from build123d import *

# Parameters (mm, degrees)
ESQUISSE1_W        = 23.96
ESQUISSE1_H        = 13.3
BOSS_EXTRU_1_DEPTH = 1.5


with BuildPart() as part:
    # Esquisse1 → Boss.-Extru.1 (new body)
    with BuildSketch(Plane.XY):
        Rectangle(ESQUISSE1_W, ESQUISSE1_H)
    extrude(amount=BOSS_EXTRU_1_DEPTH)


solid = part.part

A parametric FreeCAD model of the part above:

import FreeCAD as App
import Part
import Sketcher
Q = App.Units.Quantity

doc = App.newDocument("Part")
params = doc.addObject("Spreadsheet::Sheet", "Params")
for row, (alias, value) in enumerate([
    ("sketch1_height", "13.3 mm"),
    ("sketch1_width", "23.96 mm"),
    ("pad1_length", "1.5 mm"),
], start=1):
    params.set(f"A{row}", alias)
    params.set(f"B{row}", "=" + value)
    params.setAlias(f"B{row}", alias)

body = doc.addObject("PartDesign::Body", "Body")

# Sketch on XY plane
sketch1 = body.newObject("Sketcher::SketchObject", "Sketch")
sketch1.AttachmentSupport = (doc.getObject("XY_Plane"), [""])
sketch1.MapMode = "FlatFace"
sketch1.addGeometry(Part.LineSegment(App.Vector(-12, 7, 0), App.Vector(-12, -7, 0)), False)
sketch1.addGeometry(Part.LineSegment(App.Vector(-12, -7, 0), App.Vector(12, -7, 0)), False)
sketch1.addGeometry(Part.LineSegment(App.Vector(12, -7, 0), App.Vector(12, 7, 0)), False)
sketch1.addGeometry(Part.LineSegment(App.Vector(12, 7, 0), App.Vector(-12, 7, 0)), False)
sketch1.addConstraint(Sketcher.Constraint("Coincident", 0, 2, 1, 1))
sketch1.addConstraint(Sketcher.Constraint("Coincident", 1, 2, 2, 1))
sketch1.addConstraint(Sketcher.Constraint("Coincident", 2, 2, 3, 1))
sketch1.addConstraint(Sketcher.Constraint("Coincident", 3, 2, 0, 1))
sketch1.addConstraint(Sketcher.Constraint("Vertical", 0))
sketch1.addConstraint(Sketcher.Constraint("Horizontal", 1))
sketch1.addConstraint(Sketcher.Constraint("Vertical", 2))
sketch1.addConstraint(Sketcher.Constraint("Horizontal", 3))
sketch1.addConstraint(Sketcher.Constraint("Symmetric", 0, 2, 2, 2, -1, 1))
sketch1.addConstraint(Sketcher.Constraint("DistanceY", 0, 2, 0, 1, Q("13.3 mm")))
sketch1.addConstraint(Sketcher.Constraint("DistanceX", 1, 1, 1, 2, Q("23.96 mm")))
sketch1.setExpression("Constraints[9]", "Params.sketch1_height")
sketch1.setExpression("Constraints[10]", "Params.sketch1_width")
pad1 = body.newObject("PartDesign::Pad", "Pad")
pad1.Profile = sketch1
pad1.setExpression("Length", "Params.pad1_length")

doc.recompute()
